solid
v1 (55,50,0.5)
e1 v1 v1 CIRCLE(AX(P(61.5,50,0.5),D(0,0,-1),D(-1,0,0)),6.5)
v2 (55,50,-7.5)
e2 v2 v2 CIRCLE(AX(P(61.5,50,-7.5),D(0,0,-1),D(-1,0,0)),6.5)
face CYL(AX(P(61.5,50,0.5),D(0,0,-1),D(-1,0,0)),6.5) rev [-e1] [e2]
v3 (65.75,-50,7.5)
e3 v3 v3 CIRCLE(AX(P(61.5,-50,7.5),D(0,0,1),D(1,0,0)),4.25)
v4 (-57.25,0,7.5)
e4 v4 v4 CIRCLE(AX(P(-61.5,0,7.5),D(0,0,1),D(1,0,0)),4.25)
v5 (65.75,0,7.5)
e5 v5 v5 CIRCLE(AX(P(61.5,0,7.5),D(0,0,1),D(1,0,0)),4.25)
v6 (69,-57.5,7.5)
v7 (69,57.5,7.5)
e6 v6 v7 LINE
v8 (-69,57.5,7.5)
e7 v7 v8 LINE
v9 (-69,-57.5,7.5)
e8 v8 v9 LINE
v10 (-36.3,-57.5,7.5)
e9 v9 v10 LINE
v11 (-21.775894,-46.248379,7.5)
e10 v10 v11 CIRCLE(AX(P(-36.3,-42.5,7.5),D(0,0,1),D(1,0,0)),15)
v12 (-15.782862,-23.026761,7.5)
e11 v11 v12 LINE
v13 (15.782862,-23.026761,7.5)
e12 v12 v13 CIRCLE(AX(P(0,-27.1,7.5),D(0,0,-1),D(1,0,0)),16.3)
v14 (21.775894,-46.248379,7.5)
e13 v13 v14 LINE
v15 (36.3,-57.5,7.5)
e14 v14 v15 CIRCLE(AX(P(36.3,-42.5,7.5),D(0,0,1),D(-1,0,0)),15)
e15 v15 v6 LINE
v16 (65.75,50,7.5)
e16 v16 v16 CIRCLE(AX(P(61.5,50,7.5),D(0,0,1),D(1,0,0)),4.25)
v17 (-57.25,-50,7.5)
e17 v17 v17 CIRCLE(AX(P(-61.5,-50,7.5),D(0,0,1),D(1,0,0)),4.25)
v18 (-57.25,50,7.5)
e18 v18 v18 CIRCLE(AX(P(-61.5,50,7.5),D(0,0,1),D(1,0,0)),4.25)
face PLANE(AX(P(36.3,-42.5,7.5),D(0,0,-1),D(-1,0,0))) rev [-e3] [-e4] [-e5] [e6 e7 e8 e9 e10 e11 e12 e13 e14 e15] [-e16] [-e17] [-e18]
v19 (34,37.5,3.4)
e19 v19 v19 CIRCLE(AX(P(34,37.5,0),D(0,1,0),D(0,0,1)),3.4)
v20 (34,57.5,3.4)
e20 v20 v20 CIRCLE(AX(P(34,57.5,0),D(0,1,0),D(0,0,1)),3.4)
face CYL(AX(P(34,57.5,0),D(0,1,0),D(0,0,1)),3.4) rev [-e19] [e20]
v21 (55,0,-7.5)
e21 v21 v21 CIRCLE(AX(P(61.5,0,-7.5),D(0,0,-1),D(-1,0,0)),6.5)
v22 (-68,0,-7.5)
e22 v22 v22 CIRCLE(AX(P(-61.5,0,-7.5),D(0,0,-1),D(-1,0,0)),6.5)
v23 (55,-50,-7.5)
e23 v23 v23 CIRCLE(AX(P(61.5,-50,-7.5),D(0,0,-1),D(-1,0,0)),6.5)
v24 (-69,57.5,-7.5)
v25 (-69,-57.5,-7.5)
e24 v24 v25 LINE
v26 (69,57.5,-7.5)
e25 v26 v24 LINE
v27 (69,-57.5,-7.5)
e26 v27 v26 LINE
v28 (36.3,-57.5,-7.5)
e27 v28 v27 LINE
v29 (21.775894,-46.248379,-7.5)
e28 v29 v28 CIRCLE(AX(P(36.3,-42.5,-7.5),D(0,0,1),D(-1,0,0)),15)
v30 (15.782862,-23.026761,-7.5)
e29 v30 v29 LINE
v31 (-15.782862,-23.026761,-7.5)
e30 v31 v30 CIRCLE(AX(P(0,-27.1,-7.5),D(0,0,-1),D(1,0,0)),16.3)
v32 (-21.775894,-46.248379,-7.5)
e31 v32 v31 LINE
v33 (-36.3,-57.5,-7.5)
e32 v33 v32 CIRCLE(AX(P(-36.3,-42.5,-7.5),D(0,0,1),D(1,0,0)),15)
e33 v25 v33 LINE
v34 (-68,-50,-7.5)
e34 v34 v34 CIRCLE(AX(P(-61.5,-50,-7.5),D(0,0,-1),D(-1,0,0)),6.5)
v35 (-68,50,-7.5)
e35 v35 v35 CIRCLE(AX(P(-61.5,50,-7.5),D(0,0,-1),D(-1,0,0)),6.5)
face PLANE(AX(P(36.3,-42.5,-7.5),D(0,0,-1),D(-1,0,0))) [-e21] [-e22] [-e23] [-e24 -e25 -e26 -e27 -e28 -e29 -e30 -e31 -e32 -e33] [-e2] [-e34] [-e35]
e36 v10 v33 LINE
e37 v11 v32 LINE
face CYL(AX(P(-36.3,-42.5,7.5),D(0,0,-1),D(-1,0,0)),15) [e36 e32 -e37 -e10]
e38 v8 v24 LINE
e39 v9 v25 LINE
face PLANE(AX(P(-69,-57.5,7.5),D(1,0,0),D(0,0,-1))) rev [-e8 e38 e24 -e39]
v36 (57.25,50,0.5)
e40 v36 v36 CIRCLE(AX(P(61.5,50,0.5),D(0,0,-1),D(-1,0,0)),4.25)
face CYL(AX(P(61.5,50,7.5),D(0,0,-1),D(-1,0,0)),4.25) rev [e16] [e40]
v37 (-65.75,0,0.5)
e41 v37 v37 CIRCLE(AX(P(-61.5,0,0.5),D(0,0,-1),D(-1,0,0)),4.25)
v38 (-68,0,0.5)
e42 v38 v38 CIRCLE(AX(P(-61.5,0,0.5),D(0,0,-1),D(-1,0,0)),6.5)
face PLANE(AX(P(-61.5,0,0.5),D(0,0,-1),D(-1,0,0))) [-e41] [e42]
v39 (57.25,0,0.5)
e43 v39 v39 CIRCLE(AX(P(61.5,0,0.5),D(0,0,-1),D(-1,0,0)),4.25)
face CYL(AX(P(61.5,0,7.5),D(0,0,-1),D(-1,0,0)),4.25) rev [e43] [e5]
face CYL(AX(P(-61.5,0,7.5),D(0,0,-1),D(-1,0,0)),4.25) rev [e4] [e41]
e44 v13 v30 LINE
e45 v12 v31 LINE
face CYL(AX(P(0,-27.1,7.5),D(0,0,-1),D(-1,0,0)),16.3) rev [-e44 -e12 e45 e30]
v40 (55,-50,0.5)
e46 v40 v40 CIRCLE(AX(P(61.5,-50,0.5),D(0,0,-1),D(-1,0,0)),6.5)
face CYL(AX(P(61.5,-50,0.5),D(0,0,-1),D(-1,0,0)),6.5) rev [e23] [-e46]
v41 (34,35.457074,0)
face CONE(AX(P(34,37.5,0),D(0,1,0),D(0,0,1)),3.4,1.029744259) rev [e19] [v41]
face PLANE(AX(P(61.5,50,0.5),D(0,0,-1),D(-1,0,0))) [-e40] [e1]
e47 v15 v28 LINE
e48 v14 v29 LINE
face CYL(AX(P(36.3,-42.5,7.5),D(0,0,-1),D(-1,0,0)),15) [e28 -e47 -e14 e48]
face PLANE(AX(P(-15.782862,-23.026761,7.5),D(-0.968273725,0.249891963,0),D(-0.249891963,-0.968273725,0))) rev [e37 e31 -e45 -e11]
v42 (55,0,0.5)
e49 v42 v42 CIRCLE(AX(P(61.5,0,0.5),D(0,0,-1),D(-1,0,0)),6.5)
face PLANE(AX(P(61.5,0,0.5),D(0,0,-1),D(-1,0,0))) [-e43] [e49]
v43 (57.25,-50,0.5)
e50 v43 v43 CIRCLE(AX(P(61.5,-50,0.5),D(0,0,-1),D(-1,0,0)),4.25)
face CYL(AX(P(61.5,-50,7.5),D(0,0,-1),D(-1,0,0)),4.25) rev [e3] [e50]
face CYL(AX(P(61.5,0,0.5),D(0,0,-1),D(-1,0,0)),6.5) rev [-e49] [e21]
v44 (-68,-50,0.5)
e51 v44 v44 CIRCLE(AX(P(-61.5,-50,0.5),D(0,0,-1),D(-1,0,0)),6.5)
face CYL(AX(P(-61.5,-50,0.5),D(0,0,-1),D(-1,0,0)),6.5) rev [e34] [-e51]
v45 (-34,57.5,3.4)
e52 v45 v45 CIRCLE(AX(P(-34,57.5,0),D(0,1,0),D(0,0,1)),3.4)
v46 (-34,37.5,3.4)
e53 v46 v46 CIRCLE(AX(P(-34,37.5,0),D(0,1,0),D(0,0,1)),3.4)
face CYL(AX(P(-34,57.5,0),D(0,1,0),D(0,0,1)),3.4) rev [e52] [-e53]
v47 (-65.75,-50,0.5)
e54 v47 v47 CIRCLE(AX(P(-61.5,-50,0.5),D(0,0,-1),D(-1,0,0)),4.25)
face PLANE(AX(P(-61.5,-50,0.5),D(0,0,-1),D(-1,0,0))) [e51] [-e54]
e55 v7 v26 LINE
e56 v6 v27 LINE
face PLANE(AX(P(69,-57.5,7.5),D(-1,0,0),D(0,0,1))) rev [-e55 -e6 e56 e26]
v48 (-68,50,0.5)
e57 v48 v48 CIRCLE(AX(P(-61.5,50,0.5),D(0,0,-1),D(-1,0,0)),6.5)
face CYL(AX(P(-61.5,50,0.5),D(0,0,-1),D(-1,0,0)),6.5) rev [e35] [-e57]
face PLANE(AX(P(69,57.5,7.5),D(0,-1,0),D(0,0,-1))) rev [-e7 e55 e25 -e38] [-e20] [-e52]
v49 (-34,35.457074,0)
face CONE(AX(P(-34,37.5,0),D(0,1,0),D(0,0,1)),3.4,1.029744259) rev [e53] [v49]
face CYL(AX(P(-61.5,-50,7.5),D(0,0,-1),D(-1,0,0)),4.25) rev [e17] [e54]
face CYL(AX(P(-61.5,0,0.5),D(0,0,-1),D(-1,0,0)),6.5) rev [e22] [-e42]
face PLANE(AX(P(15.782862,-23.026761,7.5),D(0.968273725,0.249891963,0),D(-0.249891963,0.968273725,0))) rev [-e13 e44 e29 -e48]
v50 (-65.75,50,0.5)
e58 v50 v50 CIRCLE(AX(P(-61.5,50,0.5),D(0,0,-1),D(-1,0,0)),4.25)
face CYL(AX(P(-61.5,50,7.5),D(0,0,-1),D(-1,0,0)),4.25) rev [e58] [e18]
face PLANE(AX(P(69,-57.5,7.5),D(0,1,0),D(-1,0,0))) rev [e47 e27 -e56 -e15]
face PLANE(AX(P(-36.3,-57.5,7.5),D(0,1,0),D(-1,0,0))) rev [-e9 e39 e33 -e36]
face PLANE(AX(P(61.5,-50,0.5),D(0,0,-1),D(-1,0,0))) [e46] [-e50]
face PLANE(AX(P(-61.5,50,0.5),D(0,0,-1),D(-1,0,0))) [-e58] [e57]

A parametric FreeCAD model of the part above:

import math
import FreeCAD as App
import Part
import Sketcher
from FreeCAD import Vector
Q = App.Units.Quantity

doc = App.newDocument("Part")
body = doc.addObject("PartDesign::Body", "Body")

# Sketch on XY plane
sketch1 = body.newObject("Sketcher::SketchObject", "Sketch")
sketch1.AttachmentSupport = (doc.getObject("XY_Plane"), [""])
sketch1.MapMode = "FlatFace"
sketch1.addGeometry([
    Part.LineSegment(Vector(36.3, -57.5, 0), Vector(69, -57.5, 0)),  # 0
    Part.LineSegment(Vector(69, -57.5, 0), Vector(69, 57.5, 0)),  # 1
    Part.LineSegment(Vector(69, 57.5, 0), Vector(-69, 57.5, 0)),  # 2
    Part.LineSegment(Vector(-69, 57.5, 0), Vector(-69, -57.5, 0)),  # 3
    Part.LineSegment(Vector(-69, -57.5, 0), Vector(-36.3, -57.5, 0)),  # 4
    Part.ArcOfCircle(Part.Circle(Vector(-36.3, -42.5, 0), Vector(0, 0, 1), 15), math.radians(-90), math.radians(-14)),  # 5
    Part.LineSegment(Vector(-21.8, -46.2, 0), Vector(-15.8, -23, 0)),  # 6
    Part.ArcOfCircle(Part.Circle(Vector(0, -27.1, 0), Vector(0, 0, 1), 16.3), math.radians(14), math.radians(166)),  # 7
    Part.LineSegment(Vector(15.8, -23, 0), Vector(21.8, -46.2, 0)),  # 8
    Part.ArcOfCircle(Part.Circle(Vector(36.3, -42.5, 0), Vector(0, 0, 1), 15), math.radians(-166), math.radians(-90)),  # 9
    Part.Circle(Vector(61.5, -50, 0), Vector(0, 0, 1), 4.2),  # 10
    Part.Circle(Vector(-61.5, -50, 0), Vector(0, 0, 1), 4.2),  # 11
    Part.Circle(Vector(61.5, 0, 0), Vector(0, 0, 1), 4.2),  # 12
    Part.Circle(Vector(61.5, 50, 0), Vector(0, 0, 1), 4.2),  # 13
    Part.Circle(Vector(-61.5, 0, 0), Vector(0, 0, 1), 4.2),  # 14
    Part.Circle(Vector(-61.5, 50, 0), Vector(0, 0, 1), 4.2),  # 15
], False)
sketch1.addConstraint([
    Sketcher.Constraint("Coincident", 0, 2, 1, 1),
    Sketcher.Constraint("Coincident", 1, 2, 2, 1),
    Sketcher.Constraint("Coincident", 2, 2, 3, 1),
    Sketcher.Constraint("Coincident", 3, 2, 4, 1),
    Sketcher.Constraint("Tangent", 4, 2, 5, 1),
    Sketcher.Constraint("Tangent", 5, 2, 6, 1),
    Sketcher.Constraint("Tangent", 6, 2, 7, 2),
    Sketcher.Constraint("Tangent", 7, 1, 8, 1),
    Sketcher.Constraint("Tangent", 8, 2, 9, 1),
    Sketcher.Constraint("Tangent", 9, 2, 0, 1),
    Sketcher.Constraint("Horizontal", 0),
    Sketcher.Constraint("Vertical", 1),
    Sketcher.Constraint("Horizontal", 2),
    Sketcher.Constraint("Vertical", 3),
    Sketcher.Constraint("Horizontal", 4),
    Sketcher.Constraint("Equal", 5, 9),
    Sketcher.Constraint("Equal", 10, 11),
    Sketcher.Constraint("Equal", 11, 12),
    Sketcher.Constraint("Equal", 12, 13),
    Sketcher.Constraint("Equal", 13, 14),
    Sketcher.Constraint("Equal", 14, 15),
    Sketcher.Constraint("Symmetric", 11, 3, 13, 3, -1, 1),
    Sketcher.Constraint("Symmetric", 12, 3, 14, 3, -1, 1),
    Sketcher.Constraint("Symmetric", 10, 3, 15, 3, -1, 1),
    Sketcher.Constraint("Symmetric", 0, 2, 2, 2, -1, 1),
    Sketcher.Constraint("Symmetric", 5, 3, 9, 3, -2),
    Sketcher.Constraint("Symmetric", 10, 3, 11, 3, -2),
    Sketcher.Constraint("PointOnObject", 7, 3, -2),
    Sketcher.Constraint("PointOnObject", 12, 3, -1),
    Sketcher.Constraint("Vertical", 10, 3, 12, 3),
    Sketcher.Constraint("Radius", 5, Q("15 mm")),
    Sketcher.Constraint("Diameter", 10, Q("8.5 mm")),
    Sketcher.Constraint("Radius", 7, Q("16.3 mm")),
    Sketcher.Constraint("DistanceX", 2, 2, 2, 1, Q("138 mm")),
    Sketcher.Constraint("DistanceY", 1, 1, 1, 2, Q("115 mm")),
    Sketcher.Constraint("DistanceX", 0, 1, 0, 2, Q("32.7 mm")),
    Sketcher.Constraint("DistanceY", 10, 3, -1, 1, Q("50 mm")),
    Sketcher.Constraint("DistanceX", 11, 3, 10, 3, Q("123 mm")),
    Sketcher.Constraint("DistanceY", 7, 3, -1, 1, Q("27.1 mm")),
])
pad1 = body.newObject("PartDesign::Pad", "Pad")
pad1.Profile = sketch1
pad1.Length = 15
pad1.Midplane = True

# Sketch on XY plane
sketch2 = body.newObject("Sketcher::SketchObject", "Sketch001")
sketch2.AttachmentSupport = (doc.getObject("XY_Plane"), [""])
sketch2.MapMode = "FlatFace"
sketch2.AttachmentOffset = App.Placement(Vector(0, 0, -7.5), App.Rotation())
sketch2.addGeometry([
    Part.Circle(Vector(62, 50, 0), Vector(0, 0, 1), 6),  # 0
    Part.Circle(Vector(62, 0, 0), Vector(0, 0, 1), 6),  # 1
    Part.Circle(Vector(62, -50, 0), Vector(0, 0, 1), 6),  # 2
    Part.Circle(Vector(-62, 50, 0), Vector(0, 0, 1), 6),  # 3
    Part.Circle(Vector(-62, 0, 0), Vector(0, 0, 1), 6),  # 4
    Part.Circle(Vector(-62, -50, 0), Vector(0, 0, 1), 6),  # 5
], False)
sketch2.addConstraint([
    Sketcher.Constraint("Equal", 0, 1),
    Sketcher.Constraint("Equal", 1, 2),
    Sketcher.Constraint("Equal", 2, 3),
    Sketcher.Constraint("Equal", 3, 4),
    Sketcher.Constraint("Equal", 4, 5),
    Sketcher.Constraint("Symmetric", 2, 3, 3, 3, -1, 1),
    Sketcher.Constraint("Symmetric", 1, 3, 4, 3, -1, 1),
    Sketcher.Constraint("Symmetric", 0, 3, 5, 3, -1, 1),
    Sketcher.Constraint("Symmetric", 0, 3, 3, 3, -2),
    Sketcher.Constraint("PointOnObject", 1, 3, -1),
    Sketcher.Constraint("Vertical", 0, 3, 1, 3),
    Sketcher.Constraint("Diameter", 0, Q("13 mm")),
    Sketcher.Constraint("DistanceY", -1, 1, 0, 3, Q("50 mm")),
    Sketcher.Constraint("DistanceX", 3, 3, 0, 3, Q("123 mm")),
])
pocket1 = body.newObject("PartDesign::Pocket", "Pocket")
pocket1.Profile = sketch2
pocket1.Length = 8
pocket1.Reversed = True

# Sketch on XZ plane
sketch3 = body.newObject("Sketcher::SketchObject", "Sketch002")
sketch3.AttachmentSupport = (doc.getObject("XZ_Plane"), [""])
sketch3.MapMode = "FlatFace"
sketch3.AttachmentOffset = App.Placement(Vector(0, 0, -57.5), App.Rotation())
sketch3.addGeometry([
    Part.Circle(Vector(-34, 0, 0), Vector(0, 0, 1), 3.4),
    Part.Circle(Vector(34, 0, 0), Vector(0, 0, 1), 3.4),
], False)
sketch3.addConstraint([
    Sketcher.Constraint("Equal", 0, 1),
    Sketcher.Constraint("Symmetric", 0, 3, 1, 3, -1, 1),
    Sketcher.Constraint("PointOnObject", 0, 3, -1),
    Sketcher.Constraint("Diameter", 0, Q("6.8 mm")),
    Sketcher.Constraint("DistanceX", 0, 3, -1, 1, Q("34 mm")),
])
doc.recompute()
hole = body.newObject("PartDesign::Hole", "Hole")
hole.Profile = sketch3
hole.ThreadType = "None"
hole.Diameter = 6.8
hole.DepthType = "Dimension"
hole.Depth = 20
hole.DrillPoint = "Angled"
hole.DrillPointAngle = 118
hole.Reversed = True

doc.recompute()
